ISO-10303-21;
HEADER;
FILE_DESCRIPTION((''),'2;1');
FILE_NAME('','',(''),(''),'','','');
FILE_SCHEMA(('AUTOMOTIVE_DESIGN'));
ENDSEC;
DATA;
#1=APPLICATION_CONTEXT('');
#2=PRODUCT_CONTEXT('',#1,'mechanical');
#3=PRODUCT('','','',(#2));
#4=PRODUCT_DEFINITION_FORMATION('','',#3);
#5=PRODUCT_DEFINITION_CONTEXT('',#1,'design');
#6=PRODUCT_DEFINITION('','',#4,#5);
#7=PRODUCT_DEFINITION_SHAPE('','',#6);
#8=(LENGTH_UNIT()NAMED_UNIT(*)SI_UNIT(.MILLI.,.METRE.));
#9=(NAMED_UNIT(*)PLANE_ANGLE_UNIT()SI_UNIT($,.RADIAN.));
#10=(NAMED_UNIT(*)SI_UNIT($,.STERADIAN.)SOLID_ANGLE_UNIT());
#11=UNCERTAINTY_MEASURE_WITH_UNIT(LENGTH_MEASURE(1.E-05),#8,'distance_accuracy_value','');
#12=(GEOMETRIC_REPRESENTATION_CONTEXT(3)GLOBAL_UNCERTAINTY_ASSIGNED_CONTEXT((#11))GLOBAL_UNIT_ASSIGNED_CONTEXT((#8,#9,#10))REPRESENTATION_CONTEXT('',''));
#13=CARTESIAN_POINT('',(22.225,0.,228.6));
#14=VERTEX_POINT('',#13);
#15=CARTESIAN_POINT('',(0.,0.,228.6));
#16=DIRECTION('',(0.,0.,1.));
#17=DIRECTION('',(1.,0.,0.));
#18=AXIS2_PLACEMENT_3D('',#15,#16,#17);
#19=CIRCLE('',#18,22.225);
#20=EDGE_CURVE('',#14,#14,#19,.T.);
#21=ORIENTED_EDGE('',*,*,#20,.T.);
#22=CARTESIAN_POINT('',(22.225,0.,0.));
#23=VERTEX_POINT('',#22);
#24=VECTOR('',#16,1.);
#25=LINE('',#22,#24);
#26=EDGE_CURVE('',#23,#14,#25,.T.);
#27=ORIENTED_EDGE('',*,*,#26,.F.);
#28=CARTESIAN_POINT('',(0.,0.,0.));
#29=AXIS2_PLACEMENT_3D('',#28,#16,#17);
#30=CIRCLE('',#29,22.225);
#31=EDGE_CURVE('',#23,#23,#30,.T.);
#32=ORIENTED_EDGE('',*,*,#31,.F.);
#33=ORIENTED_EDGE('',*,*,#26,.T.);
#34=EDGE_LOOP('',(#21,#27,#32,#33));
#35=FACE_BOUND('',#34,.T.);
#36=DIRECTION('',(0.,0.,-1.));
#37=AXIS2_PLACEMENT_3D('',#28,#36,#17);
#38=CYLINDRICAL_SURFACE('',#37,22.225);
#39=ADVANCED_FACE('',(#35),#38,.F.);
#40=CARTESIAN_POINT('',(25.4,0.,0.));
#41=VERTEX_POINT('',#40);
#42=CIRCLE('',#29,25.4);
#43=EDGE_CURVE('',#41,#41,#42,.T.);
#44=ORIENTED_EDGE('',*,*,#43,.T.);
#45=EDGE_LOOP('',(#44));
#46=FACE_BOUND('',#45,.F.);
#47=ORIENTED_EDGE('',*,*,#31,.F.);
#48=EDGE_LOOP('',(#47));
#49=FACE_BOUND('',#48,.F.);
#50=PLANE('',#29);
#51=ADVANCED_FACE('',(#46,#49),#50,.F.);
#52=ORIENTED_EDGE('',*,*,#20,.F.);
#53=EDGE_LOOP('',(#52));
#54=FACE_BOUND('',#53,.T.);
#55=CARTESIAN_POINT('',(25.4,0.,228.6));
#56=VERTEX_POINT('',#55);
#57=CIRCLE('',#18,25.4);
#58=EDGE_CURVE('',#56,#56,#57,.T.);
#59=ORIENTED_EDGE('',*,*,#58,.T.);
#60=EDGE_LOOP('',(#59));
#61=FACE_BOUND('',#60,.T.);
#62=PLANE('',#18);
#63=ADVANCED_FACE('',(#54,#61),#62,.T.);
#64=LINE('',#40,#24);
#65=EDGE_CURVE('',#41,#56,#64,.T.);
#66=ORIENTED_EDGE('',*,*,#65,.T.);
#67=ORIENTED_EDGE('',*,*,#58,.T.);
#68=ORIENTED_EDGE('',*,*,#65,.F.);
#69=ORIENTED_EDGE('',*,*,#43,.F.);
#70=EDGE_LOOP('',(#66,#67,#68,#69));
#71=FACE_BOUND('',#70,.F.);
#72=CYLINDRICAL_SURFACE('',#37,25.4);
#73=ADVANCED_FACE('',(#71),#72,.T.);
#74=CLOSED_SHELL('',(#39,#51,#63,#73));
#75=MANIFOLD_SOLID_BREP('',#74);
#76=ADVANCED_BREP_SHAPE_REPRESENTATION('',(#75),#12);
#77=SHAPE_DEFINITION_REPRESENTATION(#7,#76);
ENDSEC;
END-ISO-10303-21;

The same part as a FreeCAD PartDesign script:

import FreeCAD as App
import Part
import Sketcher

V = App.Vector
Q = App.Units.Quantity

doc = App.newDocument("Part")
body = doc.addObject("PartDesign::Body", "Body")

sketch1 = body.newObject("Sketcher::SketchObject", "Sketch")
sketch1.AttachmentSupport = (doc.getObject("XY_Plane"), [""])
sketch1.MapMode = "FlatFace"
sketch1.addGeometry([
    Part.Circle(V(0, 0, 0), V(0, 0, 1), 25),
    Part.Circle(V(0, 0, 0), V(0, 0, 1), 22),
], False)
sketch1.addConstraint([
    Sketcher.Constraint("Coincident", 0, 3, -1, 1),
    Sketcher.Constraint("Coincident", 1, 3, -1, 1),
    Sketcher.Constraint("Diameter", 0, Q("2 in")),
    Sketcher.Constraint("Diameter", 1, Q("1.75 in")),
])
pad1 = body.newObject("PartDesign::Pad", "Pad")
pad1.Profile = sketch1
pad1.Length = Q("9 in")

doc.recompute()
